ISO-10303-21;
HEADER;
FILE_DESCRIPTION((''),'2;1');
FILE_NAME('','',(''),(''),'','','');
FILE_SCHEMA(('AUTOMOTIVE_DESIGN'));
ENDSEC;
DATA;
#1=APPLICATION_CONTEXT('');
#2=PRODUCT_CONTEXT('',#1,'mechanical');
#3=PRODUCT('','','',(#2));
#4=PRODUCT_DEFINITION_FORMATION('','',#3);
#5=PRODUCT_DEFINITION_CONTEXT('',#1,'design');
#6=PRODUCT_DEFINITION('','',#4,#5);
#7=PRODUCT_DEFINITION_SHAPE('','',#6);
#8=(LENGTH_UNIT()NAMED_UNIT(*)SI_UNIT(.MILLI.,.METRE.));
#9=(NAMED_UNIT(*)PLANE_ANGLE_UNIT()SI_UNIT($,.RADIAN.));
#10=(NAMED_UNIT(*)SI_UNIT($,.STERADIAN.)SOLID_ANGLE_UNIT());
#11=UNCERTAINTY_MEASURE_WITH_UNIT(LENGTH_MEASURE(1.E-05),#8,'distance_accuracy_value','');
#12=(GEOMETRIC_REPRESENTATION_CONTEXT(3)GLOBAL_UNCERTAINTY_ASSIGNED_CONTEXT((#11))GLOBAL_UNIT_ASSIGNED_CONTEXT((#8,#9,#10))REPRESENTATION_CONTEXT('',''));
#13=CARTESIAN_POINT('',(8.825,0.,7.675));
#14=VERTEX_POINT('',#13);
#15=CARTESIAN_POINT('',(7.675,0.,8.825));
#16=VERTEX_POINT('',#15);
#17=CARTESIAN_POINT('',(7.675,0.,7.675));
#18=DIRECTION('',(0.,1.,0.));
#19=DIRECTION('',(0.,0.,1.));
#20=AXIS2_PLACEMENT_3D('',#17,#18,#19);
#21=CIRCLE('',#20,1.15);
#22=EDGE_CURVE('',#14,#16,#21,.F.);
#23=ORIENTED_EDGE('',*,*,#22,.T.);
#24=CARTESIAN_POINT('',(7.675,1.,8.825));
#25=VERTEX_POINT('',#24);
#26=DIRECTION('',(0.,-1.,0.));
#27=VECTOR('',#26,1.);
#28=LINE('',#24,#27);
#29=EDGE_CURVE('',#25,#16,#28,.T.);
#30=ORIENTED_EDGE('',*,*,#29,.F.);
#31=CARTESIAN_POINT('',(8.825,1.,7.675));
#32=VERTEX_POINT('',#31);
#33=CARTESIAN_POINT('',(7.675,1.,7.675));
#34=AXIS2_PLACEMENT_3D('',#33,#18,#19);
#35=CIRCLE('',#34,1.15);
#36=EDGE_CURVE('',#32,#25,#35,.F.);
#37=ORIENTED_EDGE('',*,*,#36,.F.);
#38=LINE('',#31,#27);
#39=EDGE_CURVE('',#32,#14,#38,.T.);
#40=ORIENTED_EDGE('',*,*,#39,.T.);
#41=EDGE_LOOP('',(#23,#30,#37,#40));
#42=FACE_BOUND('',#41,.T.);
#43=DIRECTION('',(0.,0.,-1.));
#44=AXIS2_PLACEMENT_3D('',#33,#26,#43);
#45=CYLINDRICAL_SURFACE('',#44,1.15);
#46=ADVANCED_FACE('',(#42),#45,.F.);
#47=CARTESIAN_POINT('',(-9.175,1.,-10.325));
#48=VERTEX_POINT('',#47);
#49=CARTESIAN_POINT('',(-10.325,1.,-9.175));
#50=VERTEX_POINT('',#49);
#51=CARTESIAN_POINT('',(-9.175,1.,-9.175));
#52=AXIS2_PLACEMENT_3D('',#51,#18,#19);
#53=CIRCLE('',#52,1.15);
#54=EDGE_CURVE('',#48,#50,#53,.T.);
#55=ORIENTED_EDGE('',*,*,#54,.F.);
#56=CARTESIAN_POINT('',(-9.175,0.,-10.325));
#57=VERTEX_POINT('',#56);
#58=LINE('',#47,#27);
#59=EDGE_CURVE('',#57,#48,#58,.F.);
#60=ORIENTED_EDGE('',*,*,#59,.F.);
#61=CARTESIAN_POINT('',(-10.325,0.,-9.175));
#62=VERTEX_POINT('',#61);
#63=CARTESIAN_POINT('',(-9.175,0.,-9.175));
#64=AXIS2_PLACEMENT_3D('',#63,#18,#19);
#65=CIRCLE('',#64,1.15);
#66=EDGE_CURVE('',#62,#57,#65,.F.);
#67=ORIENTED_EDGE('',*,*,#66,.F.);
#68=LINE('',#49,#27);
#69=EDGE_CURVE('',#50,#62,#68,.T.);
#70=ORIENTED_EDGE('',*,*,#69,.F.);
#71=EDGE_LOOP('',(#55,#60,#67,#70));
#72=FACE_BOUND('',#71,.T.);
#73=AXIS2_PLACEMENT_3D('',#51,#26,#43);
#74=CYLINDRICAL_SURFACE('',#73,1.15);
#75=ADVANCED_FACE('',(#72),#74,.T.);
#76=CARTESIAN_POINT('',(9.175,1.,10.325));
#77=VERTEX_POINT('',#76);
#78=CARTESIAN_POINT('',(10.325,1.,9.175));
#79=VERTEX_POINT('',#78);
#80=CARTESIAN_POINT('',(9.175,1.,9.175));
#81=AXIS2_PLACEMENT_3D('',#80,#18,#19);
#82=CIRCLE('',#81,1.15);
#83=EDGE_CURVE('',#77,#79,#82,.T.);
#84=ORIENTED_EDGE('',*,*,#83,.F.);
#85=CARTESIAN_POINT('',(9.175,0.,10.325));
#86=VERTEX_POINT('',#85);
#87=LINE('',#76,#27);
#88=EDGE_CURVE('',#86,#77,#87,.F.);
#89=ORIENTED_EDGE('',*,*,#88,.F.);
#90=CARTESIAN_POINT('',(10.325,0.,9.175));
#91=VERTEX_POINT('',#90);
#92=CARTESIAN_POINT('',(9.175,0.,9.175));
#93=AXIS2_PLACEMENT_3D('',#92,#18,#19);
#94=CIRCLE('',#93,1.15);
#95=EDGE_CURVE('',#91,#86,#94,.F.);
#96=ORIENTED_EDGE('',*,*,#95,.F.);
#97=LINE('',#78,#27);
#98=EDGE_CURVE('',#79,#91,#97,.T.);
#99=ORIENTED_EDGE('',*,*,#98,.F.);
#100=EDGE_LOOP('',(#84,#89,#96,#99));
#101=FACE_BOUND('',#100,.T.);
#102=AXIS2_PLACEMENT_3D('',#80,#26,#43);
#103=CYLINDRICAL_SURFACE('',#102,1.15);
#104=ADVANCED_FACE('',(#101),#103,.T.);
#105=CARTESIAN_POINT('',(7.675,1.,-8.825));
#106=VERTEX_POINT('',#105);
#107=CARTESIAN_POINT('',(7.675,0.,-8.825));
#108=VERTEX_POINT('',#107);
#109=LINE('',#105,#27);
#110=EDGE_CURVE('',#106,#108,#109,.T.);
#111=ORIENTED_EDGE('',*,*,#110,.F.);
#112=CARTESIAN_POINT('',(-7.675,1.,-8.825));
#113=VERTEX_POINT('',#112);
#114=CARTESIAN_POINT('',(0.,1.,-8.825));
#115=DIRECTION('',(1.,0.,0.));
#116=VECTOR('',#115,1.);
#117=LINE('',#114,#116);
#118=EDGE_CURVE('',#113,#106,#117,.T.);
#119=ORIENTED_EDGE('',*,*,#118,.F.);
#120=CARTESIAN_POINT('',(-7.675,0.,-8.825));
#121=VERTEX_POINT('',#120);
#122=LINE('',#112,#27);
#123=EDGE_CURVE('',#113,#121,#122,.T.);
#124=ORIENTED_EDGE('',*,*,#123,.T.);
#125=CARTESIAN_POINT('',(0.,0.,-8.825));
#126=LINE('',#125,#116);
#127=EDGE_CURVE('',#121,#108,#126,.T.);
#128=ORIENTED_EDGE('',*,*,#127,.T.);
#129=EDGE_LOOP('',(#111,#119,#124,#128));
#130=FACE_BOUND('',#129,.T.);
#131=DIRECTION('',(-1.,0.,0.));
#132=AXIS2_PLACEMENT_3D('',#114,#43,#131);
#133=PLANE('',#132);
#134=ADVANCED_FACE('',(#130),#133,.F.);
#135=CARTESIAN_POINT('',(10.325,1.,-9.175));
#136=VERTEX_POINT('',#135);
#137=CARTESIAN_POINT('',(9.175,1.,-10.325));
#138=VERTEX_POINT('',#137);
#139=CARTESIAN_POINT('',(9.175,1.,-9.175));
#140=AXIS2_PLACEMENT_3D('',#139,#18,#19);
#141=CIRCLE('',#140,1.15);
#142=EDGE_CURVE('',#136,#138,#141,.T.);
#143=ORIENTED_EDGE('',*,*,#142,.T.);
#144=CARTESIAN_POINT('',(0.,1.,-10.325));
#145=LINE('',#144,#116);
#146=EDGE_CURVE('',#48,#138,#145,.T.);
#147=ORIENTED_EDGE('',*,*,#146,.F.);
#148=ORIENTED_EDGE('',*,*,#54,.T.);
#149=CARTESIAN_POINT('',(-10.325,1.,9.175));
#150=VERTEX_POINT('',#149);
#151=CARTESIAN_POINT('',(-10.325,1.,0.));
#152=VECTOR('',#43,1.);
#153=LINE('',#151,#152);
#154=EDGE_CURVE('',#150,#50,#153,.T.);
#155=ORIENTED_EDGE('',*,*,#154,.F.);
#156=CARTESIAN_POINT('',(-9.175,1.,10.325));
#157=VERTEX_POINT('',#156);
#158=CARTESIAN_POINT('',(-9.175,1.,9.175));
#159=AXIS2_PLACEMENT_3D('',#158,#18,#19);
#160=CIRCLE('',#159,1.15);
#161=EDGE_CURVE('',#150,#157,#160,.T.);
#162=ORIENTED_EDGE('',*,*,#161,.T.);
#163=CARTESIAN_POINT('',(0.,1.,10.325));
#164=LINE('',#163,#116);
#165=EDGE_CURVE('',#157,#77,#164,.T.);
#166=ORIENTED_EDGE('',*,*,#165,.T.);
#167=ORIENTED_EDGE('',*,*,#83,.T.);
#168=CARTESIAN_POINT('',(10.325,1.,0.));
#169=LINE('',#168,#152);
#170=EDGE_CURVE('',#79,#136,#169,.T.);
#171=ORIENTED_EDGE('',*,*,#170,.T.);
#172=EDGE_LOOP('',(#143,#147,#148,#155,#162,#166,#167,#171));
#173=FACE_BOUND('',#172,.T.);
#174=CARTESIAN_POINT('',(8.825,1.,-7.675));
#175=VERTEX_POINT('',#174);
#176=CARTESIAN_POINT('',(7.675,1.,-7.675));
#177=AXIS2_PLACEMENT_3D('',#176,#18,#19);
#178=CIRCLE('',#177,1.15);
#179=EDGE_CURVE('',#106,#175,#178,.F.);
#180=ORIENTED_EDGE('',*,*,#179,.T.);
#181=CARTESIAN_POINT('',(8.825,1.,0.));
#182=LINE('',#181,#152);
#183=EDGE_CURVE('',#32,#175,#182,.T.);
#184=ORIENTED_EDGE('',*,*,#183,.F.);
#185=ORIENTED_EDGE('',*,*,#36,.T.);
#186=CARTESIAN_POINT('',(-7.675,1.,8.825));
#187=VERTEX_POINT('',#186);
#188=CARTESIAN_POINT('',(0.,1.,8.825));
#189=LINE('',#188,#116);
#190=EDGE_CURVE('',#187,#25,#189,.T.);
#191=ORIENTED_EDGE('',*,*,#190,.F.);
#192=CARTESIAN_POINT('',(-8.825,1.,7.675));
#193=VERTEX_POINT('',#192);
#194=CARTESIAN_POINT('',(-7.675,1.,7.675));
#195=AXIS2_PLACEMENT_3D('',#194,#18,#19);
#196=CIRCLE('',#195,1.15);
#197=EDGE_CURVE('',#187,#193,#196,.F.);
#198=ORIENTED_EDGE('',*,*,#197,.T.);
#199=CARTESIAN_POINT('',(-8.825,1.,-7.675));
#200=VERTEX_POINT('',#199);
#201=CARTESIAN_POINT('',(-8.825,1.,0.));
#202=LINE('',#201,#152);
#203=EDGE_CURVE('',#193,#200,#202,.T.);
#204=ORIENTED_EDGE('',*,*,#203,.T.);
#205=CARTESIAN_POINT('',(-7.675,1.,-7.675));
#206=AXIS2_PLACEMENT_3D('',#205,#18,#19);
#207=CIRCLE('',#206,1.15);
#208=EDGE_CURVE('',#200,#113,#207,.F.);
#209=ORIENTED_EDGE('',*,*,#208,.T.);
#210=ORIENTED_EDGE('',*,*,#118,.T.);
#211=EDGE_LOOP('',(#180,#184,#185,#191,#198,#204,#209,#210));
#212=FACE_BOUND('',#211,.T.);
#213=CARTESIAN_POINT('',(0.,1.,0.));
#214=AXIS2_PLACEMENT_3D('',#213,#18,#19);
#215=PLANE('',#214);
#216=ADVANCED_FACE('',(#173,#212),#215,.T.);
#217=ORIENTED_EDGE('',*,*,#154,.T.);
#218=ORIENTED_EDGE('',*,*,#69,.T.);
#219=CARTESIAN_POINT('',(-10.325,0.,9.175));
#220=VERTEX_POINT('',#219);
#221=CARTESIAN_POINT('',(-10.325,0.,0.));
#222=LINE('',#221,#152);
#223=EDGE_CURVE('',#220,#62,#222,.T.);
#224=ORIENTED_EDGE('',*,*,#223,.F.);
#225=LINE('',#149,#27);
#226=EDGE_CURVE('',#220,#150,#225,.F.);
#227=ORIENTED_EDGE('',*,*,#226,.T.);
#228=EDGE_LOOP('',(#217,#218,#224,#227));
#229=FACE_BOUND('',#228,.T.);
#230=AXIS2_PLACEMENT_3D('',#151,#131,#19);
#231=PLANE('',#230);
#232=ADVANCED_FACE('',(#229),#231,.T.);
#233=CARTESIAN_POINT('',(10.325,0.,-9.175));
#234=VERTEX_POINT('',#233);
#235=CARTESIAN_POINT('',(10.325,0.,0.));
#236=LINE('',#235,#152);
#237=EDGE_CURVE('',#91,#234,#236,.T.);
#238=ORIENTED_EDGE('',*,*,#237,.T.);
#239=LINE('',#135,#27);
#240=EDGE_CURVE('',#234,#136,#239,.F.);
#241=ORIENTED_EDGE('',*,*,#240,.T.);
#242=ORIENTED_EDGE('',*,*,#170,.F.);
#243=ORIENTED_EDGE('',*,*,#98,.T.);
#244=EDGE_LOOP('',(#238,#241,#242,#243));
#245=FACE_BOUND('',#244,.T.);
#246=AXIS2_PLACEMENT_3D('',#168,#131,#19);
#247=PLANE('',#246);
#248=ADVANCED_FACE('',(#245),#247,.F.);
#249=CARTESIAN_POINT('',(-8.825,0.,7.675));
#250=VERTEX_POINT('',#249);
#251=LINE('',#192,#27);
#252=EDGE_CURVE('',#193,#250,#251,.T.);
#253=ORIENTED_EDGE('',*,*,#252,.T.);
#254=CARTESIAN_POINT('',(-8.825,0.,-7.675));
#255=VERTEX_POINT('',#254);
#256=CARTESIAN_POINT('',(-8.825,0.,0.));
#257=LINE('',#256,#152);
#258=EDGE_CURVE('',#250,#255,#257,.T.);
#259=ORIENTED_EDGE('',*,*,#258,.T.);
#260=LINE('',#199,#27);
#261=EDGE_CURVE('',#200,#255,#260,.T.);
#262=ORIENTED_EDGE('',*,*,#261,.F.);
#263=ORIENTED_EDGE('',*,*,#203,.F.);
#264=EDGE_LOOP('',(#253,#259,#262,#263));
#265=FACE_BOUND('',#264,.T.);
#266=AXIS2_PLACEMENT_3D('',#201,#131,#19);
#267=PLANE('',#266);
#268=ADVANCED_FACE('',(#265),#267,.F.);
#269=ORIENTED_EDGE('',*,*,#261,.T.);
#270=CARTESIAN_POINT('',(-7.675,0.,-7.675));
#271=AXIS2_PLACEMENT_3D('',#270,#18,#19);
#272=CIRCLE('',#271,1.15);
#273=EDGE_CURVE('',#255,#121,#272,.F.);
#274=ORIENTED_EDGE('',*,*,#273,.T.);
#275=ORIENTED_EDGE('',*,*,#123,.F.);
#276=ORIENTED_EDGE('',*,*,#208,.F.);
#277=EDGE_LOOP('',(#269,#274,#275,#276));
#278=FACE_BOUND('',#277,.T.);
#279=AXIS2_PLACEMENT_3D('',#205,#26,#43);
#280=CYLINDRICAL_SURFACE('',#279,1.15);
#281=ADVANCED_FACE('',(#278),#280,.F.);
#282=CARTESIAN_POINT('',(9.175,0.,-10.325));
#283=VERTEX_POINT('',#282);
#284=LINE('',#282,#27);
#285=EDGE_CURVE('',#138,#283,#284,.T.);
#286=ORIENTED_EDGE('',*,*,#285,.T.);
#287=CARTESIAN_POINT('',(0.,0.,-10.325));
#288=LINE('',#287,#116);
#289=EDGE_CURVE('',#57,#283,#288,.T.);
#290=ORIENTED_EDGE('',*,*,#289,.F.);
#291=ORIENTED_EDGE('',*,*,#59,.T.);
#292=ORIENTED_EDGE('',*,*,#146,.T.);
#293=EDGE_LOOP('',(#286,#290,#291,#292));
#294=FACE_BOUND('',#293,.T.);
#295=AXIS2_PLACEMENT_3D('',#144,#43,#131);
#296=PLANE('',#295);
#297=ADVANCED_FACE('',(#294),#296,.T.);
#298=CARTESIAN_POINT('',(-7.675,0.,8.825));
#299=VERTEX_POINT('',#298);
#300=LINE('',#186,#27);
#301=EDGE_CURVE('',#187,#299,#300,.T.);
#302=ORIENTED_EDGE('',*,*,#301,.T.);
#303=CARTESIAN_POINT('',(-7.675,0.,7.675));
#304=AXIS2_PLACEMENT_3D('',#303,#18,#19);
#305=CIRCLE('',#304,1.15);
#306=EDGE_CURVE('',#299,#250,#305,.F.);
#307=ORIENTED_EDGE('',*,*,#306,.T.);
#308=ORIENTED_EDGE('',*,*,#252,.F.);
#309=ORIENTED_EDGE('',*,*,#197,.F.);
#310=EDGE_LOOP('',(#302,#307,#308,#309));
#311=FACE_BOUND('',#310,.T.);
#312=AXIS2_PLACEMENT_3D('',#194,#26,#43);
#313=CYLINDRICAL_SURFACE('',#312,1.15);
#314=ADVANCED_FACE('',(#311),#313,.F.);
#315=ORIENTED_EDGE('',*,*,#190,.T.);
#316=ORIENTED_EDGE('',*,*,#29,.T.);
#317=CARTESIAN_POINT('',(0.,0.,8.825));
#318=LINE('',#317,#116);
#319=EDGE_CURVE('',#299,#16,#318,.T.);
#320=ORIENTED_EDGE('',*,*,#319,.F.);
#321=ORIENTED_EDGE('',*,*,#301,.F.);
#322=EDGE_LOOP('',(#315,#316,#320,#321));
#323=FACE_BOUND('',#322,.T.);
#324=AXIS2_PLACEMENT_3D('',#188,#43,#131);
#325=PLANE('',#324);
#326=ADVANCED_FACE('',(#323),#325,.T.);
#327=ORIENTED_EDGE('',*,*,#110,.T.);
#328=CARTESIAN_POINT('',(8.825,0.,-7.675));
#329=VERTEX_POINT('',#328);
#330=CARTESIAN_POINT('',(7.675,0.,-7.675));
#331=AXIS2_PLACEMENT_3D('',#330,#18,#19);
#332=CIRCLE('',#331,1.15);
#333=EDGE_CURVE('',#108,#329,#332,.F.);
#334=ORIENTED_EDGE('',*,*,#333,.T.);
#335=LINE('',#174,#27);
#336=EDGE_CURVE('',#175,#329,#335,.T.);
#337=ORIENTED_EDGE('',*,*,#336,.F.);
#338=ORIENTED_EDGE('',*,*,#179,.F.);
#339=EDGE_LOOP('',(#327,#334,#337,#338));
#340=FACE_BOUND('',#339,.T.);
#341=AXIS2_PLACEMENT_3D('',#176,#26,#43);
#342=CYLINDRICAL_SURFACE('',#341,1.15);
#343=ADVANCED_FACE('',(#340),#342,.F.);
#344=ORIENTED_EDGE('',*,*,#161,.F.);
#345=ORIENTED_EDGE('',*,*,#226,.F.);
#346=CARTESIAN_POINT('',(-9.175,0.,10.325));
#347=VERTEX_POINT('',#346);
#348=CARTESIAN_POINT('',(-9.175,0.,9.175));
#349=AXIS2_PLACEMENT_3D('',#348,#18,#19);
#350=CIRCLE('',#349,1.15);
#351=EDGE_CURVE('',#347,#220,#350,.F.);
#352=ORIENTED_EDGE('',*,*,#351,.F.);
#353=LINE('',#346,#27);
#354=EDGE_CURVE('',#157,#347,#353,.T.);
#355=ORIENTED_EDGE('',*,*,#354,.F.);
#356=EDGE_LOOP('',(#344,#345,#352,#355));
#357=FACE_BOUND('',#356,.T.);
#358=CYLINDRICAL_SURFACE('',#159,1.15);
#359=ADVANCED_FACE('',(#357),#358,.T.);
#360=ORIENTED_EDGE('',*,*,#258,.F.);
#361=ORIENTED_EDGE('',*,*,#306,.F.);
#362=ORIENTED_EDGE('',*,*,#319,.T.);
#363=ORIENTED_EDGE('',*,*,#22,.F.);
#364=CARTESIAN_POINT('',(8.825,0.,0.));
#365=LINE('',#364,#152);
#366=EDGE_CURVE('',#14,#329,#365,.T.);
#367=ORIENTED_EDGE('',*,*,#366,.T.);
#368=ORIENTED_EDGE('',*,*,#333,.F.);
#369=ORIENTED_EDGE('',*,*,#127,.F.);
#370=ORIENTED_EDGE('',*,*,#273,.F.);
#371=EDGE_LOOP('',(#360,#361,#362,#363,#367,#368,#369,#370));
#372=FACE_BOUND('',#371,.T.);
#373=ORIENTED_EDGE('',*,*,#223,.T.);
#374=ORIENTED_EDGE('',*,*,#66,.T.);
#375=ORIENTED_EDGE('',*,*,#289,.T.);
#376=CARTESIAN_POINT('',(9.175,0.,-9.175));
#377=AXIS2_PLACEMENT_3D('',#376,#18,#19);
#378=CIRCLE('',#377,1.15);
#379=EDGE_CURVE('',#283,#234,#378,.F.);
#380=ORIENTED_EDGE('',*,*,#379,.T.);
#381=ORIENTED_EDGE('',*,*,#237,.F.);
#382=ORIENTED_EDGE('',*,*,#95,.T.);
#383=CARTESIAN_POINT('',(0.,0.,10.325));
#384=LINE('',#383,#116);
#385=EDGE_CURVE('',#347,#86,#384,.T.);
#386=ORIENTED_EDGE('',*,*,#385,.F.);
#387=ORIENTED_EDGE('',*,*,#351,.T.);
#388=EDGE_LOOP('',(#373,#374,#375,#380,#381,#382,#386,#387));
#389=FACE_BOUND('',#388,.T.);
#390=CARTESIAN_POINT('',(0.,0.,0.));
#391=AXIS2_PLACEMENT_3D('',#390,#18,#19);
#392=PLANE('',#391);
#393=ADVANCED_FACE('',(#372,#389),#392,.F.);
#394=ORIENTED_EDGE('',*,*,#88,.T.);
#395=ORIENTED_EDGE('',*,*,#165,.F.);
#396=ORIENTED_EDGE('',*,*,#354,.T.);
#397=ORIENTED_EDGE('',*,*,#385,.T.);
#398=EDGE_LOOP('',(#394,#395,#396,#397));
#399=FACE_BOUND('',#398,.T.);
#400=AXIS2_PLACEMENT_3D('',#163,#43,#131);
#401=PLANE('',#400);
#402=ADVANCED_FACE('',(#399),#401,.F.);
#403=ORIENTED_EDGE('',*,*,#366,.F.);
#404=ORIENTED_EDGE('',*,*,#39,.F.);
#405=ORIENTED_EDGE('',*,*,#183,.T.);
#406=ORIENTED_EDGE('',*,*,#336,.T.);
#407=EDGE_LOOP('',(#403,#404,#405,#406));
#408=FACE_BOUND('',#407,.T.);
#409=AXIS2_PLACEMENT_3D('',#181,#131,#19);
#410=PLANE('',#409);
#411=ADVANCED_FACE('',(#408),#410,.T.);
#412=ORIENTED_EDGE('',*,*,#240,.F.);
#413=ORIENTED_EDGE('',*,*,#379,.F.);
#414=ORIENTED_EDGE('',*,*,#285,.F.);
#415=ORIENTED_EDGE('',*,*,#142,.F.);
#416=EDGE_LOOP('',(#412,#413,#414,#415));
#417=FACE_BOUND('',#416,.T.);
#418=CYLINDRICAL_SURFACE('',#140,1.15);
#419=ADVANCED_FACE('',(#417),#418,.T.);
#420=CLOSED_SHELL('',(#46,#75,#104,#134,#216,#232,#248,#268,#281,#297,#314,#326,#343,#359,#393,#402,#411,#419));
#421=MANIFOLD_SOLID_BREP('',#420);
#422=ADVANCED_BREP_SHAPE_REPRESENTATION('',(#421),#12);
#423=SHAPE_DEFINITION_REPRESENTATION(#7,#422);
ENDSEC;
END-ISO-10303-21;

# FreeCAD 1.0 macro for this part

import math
import FreeCAD as App
import Part
import Sketcher
Q = App.Units.Quantity


def edges_at(feature, points):
    """Names of the edges that pass closest to the given points."""
    edges = feature.Shape.Edges
    near = lambda p: min(range(len(edges)), key=lambda i: edges[i].distToShape(Part.Vertex(*p))[0])
    return sorted({f"Edge{near(p) + 1}" for p in points})


def add_polygon(sketch, points):
    """Adds a closed chain of lines whose ends are joined by coincident constraints."""
    first, n = sketch.GeometryCount, len(points)
    for a, b in zip(points, points[1:] + points[:1]):
        sketch.addGeometry(Part.LineSegment(App.Vector(*a, 0), App.Vector(*b, 0)), False)
    for i in range(n):
        sketch.addConstraint(Sketcher.Constraint("Coincident", first + i, 2, first + (i + 1) % n, 1))

doc = App.newDocument("Part")
body = doc.addObject("PartDesign::Body", "Body")

sketch1 = body.newObject("Sketcher::SketchObject", "Sketch")
sketch1.AttachmentSupport = (doc.getObject("XZ_Plane"), [""])
sketch1.MapMode = "FlatFace"
add_polygon(sketch1, [(-10.325, -10.325), (-10.325, 10.325), (10.325, 10.325), (10.325, -10.325)])
sketch1.addGeometry(Part.LineSegment(App.Vector(7.675, 8.825, 0), App.Vector(-7.675, 8.825, 0)), False)
sketch1.addGeometry(Part.ArcOfCircle(Part.Circle(App.Vector(-7.675, 7.675, 0), App.Vector(0, 0, 1), 1.15), math.radians(90), math.radians(180)), False)
sketch1.addGeometry(Part.LineSegment(App.Vector(-8.825, 7.675, 0), App.Vector(-8.825, -7.675, 0)), False)
sketch1.addGeometry(Part.ArcOfCircle(Part.Circle(App.Vector(-7.675, -7.675, 0), App.Vector(0, 0, 1), 1.15), math.radians(-180), math.radians(-90)), False)
sketch1.addGeometry(Part.LineSegment(App.Vector(-7.675, -8.825, 0), App.Vector(7.675, -8.825, 0)), False)
sketch1.addGeometry(Part.ArcOfCircle(Part.Circle(App.Vector(7.675, -7.675, 0), App.Vector(0, 0, 1), 1.15), math.radians(-90), math.radians(0)), False)
sketch1.addGeometry(Part.LineSegment(App.Vector(8.825, -7.675, 0), App.Vector(8.825, 7.675, 0)), False)
sketch1.addGeometry(Part.ArcOfCircle(Part.Circle(App.Vector(7.675, 7.675, 0), App.Vector(0, 0, 1), 1.15), math.radians(0), math.radians(90)), False)
sketch1.addConstraint([
    Sketcher.Constraint("Tangent", 4, 2, 5, 1),
    Sketcher.Constraint("Tangent", 5, 2, 6, 1),
    Sketcher.Constraint("Tangent", 6, 2, 7, 1),
    Sketcher.Constraint("Tangent", 7, 2, 8, 1),
    Sketcher.Constraint("Tangent", 8, 2, 9, 1),
    Sketcher.Constraint("Tangent", 9, 2, 10, 1),
    Sketcher.Constraint("Tangent", 10, 2, 11, 1),
    Sketcher.Constraint("Tangent", 11, 2, 4, 1),
    Sketcher.Constraint("Vertical", 0),
    Sketcher.Constraint("Horizontal", 1),
    Sketcher.Constraint("Vertical", 2),
    Sketcher.Constraint("Horizontal", 3),
    Sketcher.Constraint("Horizontal", 4),
    Sketcher.Constraint("Vertical", 6),
    Sketcher.Constraint("Horizontal", 8),
    Sketcher.Constraint("Vertical", 10),
    Sketcher.Constraint("Equal", 5, 7),
    Sketcher.Constraint("Equal", 7, 9),
    Sketcher.Constraint("Equal", 9, 11),
    Sketcher.Constraint("Symmetric", 5, 3, 9, 3, -1, 1),
    Sketcher.Constraint("Symmetric", 0, 2, 2, 2, -1, 1),
    Sketcher.Constraint("Equal", 3, 0),
    Sketcher.Constraint("Equal", 8, 6),
    Sketcher.Constraint("Radius", 5, Q("1.15 mm")),
    Sketcher.Constraint("DistanceY", 7, 3, 0, 2, Q("18 mm")),
    Sketcher.Constraint("DistanceX", 1, 1, 1, 2, Q("20.65 mm")),
])
pad1 = body.newObject("PartDesign::Pad", "Pad")
pad1.Profile = sketch1
pad1.Length = 1
pad1.Reversed = True
doc.recompute()

fillet = body.newObject("PartDesign::Fillet", "Fillet")
fillet.Base = (pad1, edges_at(pad1, [
    (-10.325, 0.5, 10.325),
    (-10.325, 0.5, -10.325),
    (10.325, 0.5, -10.325),
    (10.325, 0.5, 10.325),
]))
fillet.Radius = 1.15

doc.recompute()
